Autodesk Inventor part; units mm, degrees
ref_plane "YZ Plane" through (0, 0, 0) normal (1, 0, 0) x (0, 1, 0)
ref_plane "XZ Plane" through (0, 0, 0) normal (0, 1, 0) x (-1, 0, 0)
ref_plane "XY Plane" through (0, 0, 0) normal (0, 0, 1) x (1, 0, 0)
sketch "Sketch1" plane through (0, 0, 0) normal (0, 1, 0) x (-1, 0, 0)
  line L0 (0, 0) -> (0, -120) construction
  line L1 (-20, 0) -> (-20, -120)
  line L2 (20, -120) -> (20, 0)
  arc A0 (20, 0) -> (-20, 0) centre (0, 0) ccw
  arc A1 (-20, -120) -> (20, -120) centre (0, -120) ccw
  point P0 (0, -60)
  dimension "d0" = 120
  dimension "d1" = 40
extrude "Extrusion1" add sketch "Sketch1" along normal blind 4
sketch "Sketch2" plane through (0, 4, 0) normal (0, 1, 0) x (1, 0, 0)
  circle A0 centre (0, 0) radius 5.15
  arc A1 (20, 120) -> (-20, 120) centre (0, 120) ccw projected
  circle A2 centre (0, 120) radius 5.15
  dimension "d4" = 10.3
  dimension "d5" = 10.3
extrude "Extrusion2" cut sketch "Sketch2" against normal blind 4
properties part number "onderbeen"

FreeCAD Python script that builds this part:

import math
import FreeCAD as App
import Part
import Sketcher
Q = App.Units.Quantity

doc = App.newDocument("Part")
body = doc.addObject("PartDesign::Body", "Body")

sketch1 = body.newObject("Sketcher::SketchObject", "Sketch")
sketch1.AttachmentSupport = (doc.getObject("XZ_Plane"), [""])
sketch1.MapMode = "FlatFace"
sketch1.addGeometry(Part.ArcOfCircle(Part.Circle(App.Vector(0, 0, 0), App.Vector(0, 0, 1), 20), math.radians(0), math.radians(180)), False)
sketch1.addGeometry(Part.LineSegment(App.Vector(20, 0, 0), App.Vector(20, -120, 0)), False)
sketch1.addGeometry(Part.ArcOfCircle(Part.Circle(App.Vector(0, -120, 0), App.Vector(0, 0, 1), 20), math.radians(180), math.radians(360)), False)
sketch1.addGeometry(Part.LineSegment(App.Vector(-20, -120, 0), App.Vector(-20, 0, 0)), False)
sketch1.addConstraint(Sketcher.Constraint("Tangent", 0, 1, 1, 1))
sketch1.addConstraint(Sketcher.Constraint("Tangent", 1, 2, 2, 2))
sketch1.addConstraint(Sketcher.Constraint("Tangent", 2, 1, 3, 1))
sketch1.addConstraint(Sketcher.Constraint("Tangent", 3, 2, 0, 2))
sketch1.addConstraint(Sketcher.Constraint("Vertical", 1))
sketch1.addConstraint(Sketcher.Constraint("Vertical", 3))
sketch1.addConstraint(Sketcher.Constraint("Coincident", 0, 3, -1, 1))
sketch1.addConstraint(Sketcher.Constraint("Radius", 0, Q("20 mm")))
sketch1.addConstraint(Sketcher.Constraint("DistanceY", 1, 2, 1, 1, Q("120 mm")))
pad1 = body.newObject("PartDesign::Pad", "Pad")
pad1.Profile = sketch1
pad1.Length = 4
pad1.Reversed = True

sketch2 = body.newObject("Sketcher::SketchObject", "Sketch001")
sketch2.AttachmentSupport = (doc.getObject("XZ_Plane"), [""])
sketch2.MapMode = "FlatFace"
sketch2.AttachmentOffset = App.Placement(App.Vector(0, 0, -4), App.Rotation())
sketch2.addGeometry(Part.Circle(App.Vector(0, 0, 0), App.Vector(0, 0, 1), 5), False)
sketch2.addGeometry(Part.Circle(App.Vector(0, -120, 0), App.Vector(0, 0, 1), 5), False)
sketch2.addConstraint(Sketcher.Constraint("Coincident", 0, 3, -1, 1))
sketch2.addConstraint(Sketcher.Constraint("Equal", 0, 1))
sketch2.addConstraint(Sketcher.Constraint("PointOnObject", 1, 3, -2))
sketch2.addConstraint(Sketcher.Constraint("Diameter", 0, Q("10.3 mm")))
sketch2.addConstraint(Sketcher.Constraint("DistanceY", 1, 3, -1, 1, Q("120 mm")))
pocket1 = body.newObject("PartDesign::Pocket", "Pocket")
pocket1.Profile = sketch2
pocket1.Length = 4
pocket1.Reversed = True

doc.recompute()
